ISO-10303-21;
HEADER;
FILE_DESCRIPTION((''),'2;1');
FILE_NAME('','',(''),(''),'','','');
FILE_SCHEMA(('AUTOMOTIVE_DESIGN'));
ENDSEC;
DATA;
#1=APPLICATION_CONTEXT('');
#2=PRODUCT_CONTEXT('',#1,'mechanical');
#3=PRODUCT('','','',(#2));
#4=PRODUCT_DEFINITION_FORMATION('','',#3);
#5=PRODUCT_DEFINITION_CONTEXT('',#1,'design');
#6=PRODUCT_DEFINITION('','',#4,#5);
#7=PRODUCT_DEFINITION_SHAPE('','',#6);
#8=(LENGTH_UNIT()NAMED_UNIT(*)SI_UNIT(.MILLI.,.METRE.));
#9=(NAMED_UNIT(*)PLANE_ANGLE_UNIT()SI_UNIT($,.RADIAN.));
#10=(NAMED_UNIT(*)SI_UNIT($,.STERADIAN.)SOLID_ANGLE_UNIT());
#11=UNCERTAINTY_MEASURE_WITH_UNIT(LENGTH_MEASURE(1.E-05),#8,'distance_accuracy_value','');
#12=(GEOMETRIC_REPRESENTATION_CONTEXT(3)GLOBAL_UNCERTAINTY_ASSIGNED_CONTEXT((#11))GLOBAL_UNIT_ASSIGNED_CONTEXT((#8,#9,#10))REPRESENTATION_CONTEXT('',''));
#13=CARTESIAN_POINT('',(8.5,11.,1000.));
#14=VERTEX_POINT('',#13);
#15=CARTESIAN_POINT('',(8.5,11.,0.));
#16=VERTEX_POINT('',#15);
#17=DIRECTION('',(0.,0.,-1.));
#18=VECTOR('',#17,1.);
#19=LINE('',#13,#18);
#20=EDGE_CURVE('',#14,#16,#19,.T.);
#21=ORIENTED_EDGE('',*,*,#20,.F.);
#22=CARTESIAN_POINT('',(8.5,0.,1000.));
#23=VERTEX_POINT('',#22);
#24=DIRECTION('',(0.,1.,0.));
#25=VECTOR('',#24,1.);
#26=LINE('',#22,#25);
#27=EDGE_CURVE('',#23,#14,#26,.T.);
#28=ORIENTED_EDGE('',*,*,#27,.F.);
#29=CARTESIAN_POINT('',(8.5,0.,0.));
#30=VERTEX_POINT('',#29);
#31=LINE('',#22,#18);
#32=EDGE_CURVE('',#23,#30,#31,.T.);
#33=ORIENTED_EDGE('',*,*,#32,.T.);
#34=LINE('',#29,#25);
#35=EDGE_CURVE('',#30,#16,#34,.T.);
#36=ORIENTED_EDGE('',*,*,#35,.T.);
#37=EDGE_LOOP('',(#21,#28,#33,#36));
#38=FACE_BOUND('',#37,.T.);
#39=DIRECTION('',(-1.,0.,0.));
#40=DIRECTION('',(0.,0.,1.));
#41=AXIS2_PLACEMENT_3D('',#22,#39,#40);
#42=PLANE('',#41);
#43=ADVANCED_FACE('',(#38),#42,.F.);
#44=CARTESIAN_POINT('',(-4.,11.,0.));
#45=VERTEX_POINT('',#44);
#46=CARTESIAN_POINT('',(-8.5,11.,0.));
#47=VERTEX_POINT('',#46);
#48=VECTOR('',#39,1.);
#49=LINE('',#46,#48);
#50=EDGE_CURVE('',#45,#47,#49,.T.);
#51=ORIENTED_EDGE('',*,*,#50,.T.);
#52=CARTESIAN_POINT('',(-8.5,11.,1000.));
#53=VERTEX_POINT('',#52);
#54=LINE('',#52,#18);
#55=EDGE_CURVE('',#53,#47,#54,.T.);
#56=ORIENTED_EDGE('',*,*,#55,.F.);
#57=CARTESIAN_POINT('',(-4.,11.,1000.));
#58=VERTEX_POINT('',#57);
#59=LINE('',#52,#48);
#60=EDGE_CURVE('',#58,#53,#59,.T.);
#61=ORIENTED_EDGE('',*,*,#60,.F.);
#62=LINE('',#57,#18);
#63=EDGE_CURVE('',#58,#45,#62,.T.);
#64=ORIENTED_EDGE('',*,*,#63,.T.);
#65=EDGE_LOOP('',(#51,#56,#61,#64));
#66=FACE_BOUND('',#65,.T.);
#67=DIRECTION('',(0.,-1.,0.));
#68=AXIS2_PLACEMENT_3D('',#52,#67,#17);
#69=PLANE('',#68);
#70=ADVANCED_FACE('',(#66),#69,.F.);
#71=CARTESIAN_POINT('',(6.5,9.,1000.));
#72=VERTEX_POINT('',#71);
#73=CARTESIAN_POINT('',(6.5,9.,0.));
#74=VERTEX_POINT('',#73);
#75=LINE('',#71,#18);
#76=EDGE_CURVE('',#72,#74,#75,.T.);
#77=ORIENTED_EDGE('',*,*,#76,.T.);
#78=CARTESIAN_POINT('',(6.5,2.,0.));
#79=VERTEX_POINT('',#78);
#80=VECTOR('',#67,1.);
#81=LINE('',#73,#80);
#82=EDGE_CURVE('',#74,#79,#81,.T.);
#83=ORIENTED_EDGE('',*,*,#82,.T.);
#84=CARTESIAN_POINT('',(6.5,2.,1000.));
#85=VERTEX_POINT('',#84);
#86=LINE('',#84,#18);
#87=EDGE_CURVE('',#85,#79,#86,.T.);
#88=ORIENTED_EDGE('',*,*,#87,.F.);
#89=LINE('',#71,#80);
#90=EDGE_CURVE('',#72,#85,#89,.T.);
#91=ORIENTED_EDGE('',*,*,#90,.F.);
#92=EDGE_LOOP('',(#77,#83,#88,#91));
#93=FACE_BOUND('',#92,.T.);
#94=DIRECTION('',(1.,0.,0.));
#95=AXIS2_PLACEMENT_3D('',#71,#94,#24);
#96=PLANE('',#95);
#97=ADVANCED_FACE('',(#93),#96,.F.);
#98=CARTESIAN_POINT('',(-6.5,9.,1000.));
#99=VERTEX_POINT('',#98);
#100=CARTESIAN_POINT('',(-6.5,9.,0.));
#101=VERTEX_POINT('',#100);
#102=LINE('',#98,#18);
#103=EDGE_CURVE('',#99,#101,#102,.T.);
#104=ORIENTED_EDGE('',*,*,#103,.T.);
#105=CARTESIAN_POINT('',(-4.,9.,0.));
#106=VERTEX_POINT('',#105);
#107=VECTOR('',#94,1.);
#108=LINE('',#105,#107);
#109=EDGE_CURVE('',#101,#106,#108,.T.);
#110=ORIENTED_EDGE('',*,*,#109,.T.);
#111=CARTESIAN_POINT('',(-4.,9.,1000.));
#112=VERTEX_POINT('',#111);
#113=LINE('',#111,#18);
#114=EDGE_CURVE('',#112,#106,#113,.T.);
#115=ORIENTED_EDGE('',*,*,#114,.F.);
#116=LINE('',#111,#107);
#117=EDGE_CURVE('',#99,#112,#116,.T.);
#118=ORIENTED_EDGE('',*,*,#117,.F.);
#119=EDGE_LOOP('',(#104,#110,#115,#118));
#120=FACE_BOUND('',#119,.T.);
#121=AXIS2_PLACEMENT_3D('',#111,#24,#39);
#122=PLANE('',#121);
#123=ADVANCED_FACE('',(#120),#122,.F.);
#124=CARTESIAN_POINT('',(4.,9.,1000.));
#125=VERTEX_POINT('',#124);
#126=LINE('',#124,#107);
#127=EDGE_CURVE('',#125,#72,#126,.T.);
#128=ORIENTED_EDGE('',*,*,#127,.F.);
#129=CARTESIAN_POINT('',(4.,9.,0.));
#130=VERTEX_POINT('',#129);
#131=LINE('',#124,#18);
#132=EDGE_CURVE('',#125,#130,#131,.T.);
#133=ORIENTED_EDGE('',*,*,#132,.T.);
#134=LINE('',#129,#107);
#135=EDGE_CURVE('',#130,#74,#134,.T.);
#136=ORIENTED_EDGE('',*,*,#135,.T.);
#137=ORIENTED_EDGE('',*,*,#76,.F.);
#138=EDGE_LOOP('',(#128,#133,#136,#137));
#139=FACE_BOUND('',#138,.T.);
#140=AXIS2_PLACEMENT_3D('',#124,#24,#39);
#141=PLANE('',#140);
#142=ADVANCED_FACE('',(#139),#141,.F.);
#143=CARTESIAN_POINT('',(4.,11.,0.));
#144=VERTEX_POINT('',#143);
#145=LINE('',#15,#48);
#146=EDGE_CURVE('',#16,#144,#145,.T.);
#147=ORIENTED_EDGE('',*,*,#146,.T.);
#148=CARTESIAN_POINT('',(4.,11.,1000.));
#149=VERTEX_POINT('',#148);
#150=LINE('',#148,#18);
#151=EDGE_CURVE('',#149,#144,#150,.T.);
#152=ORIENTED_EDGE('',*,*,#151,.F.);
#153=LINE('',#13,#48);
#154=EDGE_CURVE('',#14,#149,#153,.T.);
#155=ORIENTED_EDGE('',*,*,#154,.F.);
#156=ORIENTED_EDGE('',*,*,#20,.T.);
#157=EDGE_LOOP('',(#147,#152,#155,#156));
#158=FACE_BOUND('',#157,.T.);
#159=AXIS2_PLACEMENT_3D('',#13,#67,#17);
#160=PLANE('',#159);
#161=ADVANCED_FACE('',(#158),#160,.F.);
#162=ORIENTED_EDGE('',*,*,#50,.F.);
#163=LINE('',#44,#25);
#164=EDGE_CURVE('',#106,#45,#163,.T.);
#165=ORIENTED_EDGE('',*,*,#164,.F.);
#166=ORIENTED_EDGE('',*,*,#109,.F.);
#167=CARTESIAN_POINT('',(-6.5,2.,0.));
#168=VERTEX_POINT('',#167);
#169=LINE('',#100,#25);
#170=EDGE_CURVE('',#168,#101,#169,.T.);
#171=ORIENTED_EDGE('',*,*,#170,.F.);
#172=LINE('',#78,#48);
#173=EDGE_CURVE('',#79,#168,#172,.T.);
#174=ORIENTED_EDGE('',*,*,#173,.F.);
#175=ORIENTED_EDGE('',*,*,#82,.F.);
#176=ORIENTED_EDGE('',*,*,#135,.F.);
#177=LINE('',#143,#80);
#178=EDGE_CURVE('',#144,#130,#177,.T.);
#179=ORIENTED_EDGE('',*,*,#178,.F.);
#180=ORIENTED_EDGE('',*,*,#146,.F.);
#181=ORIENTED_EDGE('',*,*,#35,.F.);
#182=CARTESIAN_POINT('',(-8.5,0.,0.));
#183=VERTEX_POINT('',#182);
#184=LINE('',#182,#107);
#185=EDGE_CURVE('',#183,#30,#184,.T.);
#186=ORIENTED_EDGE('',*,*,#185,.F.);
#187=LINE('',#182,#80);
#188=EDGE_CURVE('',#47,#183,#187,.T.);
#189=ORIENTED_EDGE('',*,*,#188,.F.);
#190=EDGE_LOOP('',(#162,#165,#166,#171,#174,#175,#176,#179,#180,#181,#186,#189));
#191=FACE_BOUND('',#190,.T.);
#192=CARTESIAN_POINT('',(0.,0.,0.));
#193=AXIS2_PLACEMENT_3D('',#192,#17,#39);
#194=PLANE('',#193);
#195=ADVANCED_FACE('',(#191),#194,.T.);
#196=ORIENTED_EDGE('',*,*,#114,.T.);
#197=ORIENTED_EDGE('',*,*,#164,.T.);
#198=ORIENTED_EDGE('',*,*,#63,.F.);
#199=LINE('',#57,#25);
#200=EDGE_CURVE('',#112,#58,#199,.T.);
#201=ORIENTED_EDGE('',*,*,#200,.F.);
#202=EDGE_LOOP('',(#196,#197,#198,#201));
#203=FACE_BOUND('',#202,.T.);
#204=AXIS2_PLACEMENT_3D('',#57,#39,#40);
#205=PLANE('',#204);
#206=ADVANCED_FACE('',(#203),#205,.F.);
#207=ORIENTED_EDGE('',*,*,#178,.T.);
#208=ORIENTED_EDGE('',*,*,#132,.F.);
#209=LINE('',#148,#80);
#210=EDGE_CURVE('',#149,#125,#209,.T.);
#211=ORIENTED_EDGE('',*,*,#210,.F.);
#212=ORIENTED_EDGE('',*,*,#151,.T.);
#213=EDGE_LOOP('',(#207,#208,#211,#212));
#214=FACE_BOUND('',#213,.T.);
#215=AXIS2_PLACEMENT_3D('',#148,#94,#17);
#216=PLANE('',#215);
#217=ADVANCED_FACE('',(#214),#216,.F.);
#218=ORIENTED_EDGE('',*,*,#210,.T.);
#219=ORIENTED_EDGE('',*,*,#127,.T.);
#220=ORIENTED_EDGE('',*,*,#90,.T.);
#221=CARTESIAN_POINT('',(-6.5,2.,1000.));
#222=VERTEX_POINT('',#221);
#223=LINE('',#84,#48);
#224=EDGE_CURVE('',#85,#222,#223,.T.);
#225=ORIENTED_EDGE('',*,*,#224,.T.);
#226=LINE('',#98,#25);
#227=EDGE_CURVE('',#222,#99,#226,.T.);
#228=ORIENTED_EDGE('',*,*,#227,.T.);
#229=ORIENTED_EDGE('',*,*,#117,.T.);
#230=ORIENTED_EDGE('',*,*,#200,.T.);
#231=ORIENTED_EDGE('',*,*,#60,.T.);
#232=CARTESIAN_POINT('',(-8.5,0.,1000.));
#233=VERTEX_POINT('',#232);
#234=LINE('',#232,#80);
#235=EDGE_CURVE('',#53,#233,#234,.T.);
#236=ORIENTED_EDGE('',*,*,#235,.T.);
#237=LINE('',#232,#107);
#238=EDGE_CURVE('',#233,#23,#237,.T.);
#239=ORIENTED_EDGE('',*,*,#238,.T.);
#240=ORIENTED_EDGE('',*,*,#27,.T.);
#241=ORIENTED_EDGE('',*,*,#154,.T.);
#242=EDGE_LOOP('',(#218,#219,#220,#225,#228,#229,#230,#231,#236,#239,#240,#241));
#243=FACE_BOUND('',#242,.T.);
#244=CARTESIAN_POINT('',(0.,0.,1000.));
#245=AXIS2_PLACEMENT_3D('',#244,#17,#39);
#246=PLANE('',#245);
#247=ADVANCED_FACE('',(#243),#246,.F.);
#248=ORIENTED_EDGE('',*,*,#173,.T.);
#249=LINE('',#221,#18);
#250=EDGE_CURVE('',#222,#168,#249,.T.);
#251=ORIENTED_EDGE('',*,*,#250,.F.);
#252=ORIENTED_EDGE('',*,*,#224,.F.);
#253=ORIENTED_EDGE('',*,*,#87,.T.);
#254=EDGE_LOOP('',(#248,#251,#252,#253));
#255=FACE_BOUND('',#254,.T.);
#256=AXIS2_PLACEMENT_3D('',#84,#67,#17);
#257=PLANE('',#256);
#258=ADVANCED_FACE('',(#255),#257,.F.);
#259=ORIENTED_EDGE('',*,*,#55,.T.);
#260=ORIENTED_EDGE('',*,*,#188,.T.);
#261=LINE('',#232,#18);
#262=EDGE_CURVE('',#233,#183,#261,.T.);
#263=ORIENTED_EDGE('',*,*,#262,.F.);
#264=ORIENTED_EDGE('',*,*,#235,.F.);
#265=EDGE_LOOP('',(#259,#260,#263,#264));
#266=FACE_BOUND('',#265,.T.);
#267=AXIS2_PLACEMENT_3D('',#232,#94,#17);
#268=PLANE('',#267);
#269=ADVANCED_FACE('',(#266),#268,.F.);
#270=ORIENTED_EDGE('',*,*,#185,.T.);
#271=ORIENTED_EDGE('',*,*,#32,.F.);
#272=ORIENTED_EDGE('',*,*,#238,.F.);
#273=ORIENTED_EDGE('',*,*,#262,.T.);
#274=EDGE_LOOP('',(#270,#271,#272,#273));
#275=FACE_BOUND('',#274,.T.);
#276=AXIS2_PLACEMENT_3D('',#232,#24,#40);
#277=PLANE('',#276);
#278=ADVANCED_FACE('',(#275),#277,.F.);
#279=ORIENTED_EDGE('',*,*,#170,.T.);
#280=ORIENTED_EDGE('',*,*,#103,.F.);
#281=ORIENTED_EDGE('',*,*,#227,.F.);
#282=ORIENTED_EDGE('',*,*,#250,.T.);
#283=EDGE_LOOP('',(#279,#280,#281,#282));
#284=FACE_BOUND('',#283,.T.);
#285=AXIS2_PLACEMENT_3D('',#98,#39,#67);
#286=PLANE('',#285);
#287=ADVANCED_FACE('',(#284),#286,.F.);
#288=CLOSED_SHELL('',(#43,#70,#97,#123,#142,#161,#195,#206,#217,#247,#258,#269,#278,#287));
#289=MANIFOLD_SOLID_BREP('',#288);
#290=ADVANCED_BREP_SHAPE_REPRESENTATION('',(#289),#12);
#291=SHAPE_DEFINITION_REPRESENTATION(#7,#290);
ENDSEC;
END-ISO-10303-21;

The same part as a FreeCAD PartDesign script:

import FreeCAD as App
import Part
import Sketcher

V = App.Vector


def add_polygon(sketch, points):
    """Adds a closed chain of lines whose ends are joined by coincident constraints."""
    first, n = sketch.GeometryCount, len(points)
    for a, b in zip(points, points[1:] + points[:1]):
        sketch.addGeometry(Part.LineSegment(App.Vector(*a, 0), App.Vector(*b, 0)), False)
    for i in range(n):
        sketch.addConstraint(Sketcher.Constraint("Coincident", first + i, 2, first + (i + 1) % n, 1))

doc = App.newDocument("Part")
params = doc.addObject("Spreadsheet::Sheet", "Params")
for row, (alias, value) in enumerate([
    ("sketch1_width", "17 mm"),
    ("sketch1_width2", "13 mm"),
    ("sketch1_height", "11 mm"),
    ("sketch1_height2", "2 mm"),
    ("sketch1_height3", "7 mm"),
    ("pad1_length", "1000 mm"),
], start=1):
    params.set(f"A{row}", alias)
    params.set(f"B{row}", "=" + value)
    params.setAlias(f"B{row}", alias)

body = doc.addObject("PartDesign::Body", "Body")

# Sketch on XY plane
sketch1 = body.newObject("Sketcher::SketchObject", "Sketch")
sketch1.AttachmentSupport = (doc.getObject("XY_Plane"), [""])
sketch1.MapMode = "FlatFace"
add_polygon(sketch1, [(-8.5, 0), (8.5, 0), (8.5, 11), (4, 11), (4, 9), (6.5, 9), (6.5, 2), (-6.5, 2), (-6.5, 9), (-4, 9), (-4, 11), (-8.5, 11)])  # lines 0-11
sketch1.addConstraint([
    Sketcher.Constraint("Horizontal", 0),
    Sketcher.Constraint("Vertical", 1),
    Sketcher.Constraint("Horizontal", 2),
    Sketcher.Constraint("Vertical", 3),
    Sketcher.Constraint("Horizontal", 4),
    Sketcher.Constraint("Vertical", 5),
    Sketcher.Constraint("Horizontal", 6),
    Sketcher.Constraint("Vertical", 7),
    Sketcher.Constraint("Horizontal", 8),
    Sketcher.Constraint("Vertical", 9),
    Sketcher.Constraint("Horizontal", 10),
    Sketcher.Constraint("Vertical", 11),
    Sketcher.Constraint("Symmetric", 0, 2, 11, 2, -1, 1),
    Sketcher.Constraint("Symmetric", 4, 2, 7, 2, -2),
    Sketcher.Constraint("Symmetric", 2, 2, 9, 2, -2),
    Sketcher.Constraint("DistanceX", 0, 1, 0, 2, 17.0),
    Sketcher.Constraint("DistanceX", 6, 2, 6, 1, 13.0),
    Sketcher.Constraint("DistanceY", 1, 1, 1, 2, 11.0),
    Sketcher.Constraint("DistanceY", 3, 2, 3, 1, 2.0),
    Sketcher.Constraint("DistanceY", 5, 2, 5, 1, 7.0),
    Sketcher.Constraint("DistanceX", 2, 2, 2, 1, 4.5),
])
sketch1.setExpression("Constraints[27]", "Params.sketch1_width")
sketch1.setExpression("Constraints[28]", "Params.sketch1_width2")
sketch1.setExpression("Constraints[29]", "Params.sketch1_height")
sketch1.setExpression("Constraints[30]", "Params.sketch1_height2")
sketch1.setExpression("Constraints[31]", "Params.sketch1_height3")
pad1 = body.newObject("PartDesign::Pad", "Pad")
pad1.Profile = sketch1
pad1.setExpression("Length", "Params.pad1_length")

doc.recompute()
